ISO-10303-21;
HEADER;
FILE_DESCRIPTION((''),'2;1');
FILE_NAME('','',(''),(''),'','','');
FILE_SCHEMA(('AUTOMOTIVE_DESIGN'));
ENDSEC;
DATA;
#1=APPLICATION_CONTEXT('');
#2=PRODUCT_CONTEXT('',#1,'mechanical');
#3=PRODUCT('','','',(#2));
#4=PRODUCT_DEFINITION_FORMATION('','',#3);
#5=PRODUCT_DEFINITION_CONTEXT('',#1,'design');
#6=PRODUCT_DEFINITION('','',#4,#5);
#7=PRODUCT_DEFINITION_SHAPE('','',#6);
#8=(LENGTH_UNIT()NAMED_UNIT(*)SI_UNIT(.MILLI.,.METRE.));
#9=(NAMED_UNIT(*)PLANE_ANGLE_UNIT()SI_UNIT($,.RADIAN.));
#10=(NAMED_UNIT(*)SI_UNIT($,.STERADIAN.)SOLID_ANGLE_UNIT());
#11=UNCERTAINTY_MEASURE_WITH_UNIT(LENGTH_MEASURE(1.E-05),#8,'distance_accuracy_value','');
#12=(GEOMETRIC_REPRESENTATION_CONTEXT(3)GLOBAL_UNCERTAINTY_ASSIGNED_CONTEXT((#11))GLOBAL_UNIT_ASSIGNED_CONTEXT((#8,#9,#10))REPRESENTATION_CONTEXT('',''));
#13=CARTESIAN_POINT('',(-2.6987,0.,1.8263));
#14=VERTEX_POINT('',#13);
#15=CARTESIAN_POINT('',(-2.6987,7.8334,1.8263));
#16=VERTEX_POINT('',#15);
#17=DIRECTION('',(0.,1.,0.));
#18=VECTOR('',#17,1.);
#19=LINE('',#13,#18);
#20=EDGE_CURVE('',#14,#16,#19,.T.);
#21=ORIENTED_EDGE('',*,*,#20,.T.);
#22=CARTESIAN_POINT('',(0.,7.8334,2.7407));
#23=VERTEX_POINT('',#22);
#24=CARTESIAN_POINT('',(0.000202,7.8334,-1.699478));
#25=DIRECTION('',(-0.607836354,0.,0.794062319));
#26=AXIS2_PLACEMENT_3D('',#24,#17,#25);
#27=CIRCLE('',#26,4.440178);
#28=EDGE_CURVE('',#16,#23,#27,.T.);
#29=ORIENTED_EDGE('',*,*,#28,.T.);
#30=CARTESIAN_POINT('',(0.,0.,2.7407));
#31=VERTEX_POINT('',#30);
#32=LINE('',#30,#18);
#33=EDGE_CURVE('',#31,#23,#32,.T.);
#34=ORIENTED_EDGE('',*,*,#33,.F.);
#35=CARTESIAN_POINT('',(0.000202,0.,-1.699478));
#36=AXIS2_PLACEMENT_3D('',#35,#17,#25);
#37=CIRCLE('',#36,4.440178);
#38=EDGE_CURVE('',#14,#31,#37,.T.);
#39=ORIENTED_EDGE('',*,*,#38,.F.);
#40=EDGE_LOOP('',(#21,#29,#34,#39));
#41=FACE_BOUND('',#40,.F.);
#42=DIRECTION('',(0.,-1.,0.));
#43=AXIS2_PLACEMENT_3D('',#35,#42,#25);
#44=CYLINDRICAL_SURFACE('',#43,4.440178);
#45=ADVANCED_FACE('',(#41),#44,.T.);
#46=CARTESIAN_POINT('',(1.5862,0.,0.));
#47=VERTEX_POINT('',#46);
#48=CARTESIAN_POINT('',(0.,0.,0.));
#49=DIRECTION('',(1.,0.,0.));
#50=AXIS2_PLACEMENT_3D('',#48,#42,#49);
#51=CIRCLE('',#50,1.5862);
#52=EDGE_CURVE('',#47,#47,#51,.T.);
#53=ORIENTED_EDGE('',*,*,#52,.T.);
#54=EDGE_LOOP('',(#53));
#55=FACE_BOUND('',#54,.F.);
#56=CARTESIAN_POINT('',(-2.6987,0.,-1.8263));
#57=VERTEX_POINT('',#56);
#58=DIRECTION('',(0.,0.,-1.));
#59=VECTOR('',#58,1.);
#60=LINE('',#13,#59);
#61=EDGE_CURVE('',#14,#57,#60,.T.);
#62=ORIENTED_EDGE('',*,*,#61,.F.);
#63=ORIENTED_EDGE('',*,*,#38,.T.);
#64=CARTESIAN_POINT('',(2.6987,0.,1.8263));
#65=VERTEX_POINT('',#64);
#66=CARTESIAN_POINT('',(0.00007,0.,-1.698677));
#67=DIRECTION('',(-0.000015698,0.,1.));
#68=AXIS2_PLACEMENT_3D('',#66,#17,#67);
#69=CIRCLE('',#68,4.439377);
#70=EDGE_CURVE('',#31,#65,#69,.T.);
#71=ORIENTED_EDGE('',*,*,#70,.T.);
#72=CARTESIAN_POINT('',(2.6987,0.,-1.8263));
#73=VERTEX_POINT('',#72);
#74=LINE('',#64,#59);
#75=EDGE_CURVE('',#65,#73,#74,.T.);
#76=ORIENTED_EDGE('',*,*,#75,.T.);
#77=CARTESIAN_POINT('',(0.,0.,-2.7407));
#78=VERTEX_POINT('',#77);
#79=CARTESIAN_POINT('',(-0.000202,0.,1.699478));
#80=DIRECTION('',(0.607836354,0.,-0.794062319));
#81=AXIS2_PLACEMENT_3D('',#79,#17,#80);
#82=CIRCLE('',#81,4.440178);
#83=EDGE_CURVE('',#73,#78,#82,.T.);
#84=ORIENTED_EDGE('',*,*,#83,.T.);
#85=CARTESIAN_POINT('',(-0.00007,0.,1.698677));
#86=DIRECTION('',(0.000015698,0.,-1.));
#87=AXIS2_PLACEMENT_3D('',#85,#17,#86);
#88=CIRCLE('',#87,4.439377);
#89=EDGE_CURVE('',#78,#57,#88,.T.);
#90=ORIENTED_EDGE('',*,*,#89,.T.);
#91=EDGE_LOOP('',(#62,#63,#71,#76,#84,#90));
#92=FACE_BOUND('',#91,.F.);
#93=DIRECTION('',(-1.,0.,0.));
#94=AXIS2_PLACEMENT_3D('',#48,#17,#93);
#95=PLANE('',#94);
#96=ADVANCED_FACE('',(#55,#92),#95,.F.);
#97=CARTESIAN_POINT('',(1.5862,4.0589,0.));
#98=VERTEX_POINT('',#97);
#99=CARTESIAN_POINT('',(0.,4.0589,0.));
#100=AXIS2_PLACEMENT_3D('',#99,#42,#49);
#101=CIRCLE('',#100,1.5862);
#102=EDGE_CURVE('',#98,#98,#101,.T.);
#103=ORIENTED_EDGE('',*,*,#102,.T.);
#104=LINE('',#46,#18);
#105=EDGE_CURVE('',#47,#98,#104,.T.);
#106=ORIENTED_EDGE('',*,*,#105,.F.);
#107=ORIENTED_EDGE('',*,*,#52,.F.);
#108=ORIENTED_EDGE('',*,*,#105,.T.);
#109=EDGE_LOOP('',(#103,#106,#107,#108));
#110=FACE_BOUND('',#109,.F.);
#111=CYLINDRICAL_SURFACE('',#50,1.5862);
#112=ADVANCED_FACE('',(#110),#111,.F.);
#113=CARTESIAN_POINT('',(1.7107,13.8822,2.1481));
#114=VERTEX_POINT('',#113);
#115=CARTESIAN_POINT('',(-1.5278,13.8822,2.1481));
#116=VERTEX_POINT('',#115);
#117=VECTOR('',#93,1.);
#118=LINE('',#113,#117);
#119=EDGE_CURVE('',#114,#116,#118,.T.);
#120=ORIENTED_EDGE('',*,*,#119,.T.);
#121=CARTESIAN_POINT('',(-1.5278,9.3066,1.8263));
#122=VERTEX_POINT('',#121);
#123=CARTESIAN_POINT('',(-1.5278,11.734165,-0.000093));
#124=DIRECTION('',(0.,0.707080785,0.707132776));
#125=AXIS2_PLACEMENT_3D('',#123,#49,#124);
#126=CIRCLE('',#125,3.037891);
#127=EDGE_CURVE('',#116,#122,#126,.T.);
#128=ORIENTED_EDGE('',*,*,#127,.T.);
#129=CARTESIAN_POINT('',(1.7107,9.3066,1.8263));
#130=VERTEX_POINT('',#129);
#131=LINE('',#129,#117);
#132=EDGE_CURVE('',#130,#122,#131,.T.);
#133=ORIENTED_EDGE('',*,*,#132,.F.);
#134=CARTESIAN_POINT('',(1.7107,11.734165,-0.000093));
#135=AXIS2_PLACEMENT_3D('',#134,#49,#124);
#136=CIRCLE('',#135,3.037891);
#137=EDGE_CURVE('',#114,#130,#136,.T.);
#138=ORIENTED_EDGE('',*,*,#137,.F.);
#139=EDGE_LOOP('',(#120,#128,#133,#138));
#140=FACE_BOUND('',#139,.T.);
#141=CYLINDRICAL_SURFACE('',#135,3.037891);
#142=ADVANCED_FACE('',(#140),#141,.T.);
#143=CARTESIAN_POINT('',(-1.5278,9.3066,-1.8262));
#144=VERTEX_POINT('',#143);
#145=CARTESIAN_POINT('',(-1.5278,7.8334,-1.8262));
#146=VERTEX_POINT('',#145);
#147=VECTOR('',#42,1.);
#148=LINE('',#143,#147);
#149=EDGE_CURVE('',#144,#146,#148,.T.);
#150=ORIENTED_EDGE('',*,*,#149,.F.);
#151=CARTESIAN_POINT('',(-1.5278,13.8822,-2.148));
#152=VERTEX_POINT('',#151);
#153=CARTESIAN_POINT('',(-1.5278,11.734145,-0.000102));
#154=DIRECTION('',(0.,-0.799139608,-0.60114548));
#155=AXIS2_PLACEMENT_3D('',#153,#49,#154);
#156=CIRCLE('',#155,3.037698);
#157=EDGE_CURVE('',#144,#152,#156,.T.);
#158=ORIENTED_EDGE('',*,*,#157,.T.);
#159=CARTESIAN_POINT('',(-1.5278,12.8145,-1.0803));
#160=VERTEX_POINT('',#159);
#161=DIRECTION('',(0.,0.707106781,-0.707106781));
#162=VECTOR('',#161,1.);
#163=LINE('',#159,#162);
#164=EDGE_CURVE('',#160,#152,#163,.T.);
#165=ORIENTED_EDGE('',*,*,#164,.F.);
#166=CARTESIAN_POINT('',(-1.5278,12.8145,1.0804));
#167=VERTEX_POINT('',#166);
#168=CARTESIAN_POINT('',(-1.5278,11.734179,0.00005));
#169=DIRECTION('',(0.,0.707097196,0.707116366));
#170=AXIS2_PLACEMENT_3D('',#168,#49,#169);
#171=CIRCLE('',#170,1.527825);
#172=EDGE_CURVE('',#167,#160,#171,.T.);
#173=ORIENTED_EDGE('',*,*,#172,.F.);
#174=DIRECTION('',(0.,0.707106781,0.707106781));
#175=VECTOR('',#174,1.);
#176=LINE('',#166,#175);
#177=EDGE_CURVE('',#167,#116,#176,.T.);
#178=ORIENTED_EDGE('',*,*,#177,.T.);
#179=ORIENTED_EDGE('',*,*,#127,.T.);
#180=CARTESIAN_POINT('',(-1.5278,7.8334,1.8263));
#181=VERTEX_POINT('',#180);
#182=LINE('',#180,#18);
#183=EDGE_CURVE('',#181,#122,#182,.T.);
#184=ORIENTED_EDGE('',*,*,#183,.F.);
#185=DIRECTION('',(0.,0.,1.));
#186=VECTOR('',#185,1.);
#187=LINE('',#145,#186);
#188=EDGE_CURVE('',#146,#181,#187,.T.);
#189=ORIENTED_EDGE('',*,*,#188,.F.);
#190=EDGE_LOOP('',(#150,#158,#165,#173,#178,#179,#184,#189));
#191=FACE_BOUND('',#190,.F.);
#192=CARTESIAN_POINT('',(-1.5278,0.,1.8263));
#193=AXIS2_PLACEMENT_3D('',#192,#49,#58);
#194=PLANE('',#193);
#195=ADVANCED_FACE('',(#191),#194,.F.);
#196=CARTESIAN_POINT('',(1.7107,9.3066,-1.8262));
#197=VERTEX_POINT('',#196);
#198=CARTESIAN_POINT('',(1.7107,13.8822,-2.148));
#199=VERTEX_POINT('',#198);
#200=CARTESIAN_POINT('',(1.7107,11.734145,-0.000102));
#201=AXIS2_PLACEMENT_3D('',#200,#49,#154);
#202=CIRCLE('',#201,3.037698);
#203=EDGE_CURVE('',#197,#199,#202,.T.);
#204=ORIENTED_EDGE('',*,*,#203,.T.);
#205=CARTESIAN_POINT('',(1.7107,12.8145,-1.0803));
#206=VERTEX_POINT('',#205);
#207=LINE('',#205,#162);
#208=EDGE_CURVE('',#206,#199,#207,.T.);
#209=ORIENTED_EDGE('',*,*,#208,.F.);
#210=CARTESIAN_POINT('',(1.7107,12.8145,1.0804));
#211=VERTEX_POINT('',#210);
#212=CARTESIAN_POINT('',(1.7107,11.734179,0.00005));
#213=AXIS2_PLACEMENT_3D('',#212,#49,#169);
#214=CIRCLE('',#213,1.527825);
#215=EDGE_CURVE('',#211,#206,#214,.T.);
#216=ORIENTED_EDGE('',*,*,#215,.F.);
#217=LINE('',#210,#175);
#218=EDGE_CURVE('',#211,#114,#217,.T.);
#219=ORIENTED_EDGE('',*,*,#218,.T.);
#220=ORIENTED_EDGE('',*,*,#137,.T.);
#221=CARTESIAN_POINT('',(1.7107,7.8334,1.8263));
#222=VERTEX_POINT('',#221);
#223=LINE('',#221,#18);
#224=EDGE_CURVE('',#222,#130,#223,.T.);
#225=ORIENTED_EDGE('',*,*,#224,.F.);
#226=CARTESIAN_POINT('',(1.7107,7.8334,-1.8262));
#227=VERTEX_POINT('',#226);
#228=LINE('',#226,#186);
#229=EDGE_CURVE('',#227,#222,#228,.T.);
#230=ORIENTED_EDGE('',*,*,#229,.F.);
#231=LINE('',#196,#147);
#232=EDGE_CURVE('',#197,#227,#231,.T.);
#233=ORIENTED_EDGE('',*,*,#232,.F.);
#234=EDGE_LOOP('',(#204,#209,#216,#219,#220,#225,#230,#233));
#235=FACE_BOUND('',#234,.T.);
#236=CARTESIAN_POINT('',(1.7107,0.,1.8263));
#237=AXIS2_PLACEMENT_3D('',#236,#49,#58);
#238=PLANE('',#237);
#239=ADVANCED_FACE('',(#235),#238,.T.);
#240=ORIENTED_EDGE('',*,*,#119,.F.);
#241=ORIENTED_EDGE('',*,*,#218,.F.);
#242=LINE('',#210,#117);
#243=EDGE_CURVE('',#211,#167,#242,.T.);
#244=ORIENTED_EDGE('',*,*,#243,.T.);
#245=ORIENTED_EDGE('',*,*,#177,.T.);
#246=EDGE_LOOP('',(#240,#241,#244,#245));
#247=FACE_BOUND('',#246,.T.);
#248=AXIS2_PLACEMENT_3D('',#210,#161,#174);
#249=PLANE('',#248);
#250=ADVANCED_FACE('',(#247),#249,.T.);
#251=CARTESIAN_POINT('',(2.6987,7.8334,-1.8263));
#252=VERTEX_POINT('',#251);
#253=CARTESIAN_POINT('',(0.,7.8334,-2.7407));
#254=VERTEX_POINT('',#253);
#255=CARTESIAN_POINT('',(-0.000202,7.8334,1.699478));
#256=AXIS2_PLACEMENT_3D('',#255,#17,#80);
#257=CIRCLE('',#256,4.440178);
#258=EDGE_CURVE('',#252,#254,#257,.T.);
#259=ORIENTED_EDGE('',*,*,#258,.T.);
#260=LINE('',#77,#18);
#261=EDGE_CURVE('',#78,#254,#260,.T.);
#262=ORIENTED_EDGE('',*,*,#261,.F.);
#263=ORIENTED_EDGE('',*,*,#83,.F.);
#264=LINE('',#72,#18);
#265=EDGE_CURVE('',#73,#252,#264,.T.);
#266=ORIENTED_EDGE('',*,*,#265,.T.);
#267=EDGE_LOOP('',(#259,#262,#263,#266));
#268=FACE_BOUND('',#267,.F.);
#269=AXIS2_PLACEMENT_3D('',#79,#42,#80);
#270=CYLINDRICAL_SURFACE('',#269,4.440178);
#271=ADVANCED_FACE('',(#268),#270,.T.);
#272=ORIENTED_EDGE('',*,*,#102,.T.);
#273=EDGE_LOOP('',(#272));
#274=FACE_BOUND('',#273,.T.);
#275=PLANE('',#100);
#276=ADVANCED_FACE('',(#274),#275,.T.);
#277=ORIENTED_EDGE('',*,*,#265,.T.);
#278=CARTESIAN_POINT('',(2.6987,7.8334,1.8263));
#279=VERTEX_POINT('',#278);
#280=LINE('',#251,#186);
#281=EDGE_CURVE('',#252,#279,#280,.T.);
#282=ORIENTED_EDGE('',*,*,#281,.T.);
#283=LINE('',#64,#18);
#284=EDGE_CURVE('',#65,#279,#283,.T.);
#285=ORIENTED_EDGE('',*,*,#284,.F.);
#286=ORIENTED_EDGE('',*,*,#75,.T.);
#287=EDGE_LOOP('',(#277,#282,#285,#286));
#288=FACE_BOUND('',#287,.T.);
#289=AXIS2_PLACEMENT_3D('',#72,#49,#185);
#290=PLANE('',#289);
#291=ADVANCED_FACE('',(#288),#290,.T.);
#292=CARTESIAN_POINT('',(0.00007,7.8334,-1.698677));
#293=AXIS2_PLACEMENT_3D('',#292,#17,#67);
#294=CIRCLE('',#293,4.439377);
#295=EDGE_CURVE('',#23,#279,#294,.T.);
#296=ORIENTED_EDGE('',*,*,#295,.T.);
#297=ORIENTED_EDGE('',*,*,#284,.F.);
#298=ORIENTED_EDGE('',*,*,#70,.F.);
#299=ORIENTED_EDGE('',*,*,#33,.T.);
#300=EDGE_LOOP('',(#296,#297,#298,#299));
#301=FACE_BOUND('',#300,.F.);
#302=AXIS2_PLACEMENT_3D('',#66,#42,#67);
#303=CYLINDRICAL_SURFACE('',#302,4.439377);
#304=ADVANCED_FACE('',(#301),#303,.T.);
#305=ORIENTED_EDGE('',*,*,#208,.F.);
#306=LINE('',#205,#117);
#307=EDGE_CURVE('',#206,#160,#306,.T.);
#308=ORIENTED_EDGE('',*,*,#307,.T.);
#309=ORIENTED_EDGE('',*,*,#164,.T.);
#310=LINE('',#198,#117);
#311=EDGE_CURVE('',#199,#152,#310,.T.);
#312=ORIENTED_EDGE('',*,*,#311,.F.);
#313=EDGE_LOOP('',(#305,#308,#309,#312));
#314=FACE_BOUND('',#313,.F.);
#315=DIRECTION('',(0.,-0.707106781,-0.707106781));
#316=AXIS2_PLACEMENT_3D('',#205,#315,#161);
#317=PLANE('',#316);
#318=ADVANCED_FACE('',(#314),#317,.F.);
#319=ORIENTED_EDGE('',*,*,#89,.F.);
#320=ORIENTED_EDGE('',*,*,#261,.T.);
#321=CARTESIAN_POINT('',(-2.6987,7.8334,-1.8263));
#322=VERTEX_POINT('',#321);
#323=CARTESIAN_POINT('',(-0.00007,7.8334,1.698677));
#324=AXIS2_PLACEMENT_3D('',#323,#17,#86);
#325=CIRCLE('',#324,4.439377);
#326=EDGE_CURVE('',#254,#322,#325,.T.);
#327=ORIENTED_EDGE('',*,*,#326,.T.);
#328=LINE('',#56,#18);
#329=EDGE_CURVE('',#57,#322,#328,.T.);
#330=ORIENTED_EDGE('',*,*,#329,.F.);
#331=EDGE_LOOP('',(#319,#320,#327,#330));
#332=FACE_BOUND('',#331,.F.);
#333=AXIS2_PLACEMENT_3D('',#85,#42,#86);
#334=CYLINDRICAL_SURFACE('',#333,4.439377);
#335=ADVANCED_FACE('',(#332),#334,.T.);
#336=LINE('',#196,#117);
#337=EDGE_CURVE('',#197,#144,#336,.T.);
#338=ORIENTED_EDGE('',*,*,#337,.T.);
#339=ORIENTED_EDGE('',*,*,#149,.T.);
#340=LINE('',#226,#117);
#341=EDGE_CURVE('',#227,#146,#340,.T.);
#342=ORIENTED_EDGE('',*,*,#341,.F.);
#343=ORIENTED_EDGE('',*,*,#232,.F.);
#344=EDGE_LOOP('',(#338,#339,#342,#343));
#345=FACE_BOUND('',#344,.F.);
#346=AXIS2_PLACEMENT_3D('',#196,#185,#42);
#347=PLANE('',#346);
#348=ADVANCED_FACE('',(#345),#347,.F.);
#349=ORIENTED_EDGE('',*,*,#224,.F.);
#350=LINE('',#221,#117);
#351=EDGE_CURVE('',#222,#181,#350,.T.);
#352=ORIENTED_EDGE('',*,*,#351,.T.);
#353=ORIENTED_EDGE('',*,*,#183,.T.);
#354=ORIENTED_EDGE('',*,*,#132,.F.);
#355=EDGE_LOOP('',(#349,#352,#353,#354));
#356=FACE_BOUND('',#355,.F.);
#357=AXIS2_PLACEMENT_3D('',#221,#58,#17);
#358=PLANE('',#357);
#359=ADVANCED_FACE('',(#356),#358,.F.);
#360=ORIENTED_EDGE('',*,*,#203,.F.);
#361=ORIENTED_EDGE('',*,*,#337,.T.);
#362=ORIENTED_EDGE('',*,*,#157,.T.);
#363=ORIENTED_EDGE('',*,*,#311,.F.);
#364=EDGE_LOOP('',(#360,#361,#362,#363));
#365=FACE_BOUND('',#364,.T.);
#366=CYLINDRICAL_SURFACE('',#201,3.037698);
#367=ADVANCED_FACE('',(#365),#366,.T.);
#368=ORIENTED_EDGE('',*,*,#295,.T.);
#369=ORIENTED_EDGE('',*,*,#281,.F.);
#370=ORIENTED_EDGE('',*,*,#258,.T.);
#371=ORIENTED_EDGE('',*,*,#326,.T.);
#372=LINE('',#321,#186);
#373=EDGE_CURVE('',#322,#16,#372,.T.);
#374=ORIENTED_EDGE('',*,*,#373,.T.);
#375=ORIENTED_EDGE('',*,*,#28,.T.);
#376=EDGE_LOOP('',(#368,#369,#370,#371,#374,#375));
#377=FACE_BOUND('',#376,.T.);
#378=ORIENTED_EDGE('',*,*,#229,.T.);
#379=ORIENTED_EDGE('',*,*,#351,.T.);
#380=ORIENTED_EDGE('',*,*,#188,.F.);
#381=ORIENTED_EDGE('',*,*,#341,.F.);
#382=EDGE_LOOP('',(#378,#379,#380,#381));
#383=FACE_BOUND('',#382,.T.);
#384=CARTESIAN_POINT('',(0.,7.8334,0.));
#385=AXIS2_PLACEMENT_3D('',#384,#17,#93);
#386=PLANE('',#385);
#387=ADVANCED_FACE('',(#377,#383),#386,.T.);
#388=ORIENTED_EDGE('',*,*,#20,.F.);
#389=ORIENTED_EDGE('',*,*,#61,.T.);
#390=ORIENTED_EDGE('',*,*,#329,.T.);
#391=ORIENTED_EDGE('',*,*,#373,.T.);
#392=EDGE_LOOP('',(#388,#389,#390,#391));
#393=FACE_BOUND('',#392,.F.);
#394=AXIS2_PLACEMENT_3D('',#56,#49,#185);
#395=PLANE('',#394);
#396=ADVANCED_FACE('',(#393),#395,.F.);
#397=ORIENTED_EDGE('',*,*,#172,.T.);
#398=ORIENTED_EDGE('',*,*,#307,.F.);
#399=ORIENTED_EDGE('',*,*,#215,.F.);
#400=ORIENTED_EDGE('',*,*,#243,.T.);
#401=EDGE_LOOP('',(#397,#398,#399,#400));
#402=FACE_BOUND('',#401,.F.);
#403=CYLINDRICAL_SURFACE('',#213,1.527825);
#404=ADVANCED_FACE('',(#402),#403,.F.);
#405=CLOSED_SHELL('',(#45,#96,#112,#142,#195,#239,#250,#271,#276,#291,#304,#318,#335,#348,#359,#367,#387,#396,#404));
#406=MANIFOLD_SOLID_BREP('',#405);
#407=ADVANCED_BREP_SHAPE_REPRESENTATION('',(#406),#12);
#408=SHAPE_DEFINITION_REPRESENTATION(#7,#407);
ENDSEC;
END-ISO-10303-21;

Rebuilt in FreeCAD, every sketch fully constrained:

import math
import FreeCAD as App
import Part
import Sketcher

V = App.Vector
Q = App.Units.Quantity

doc = App.newDocument("Part")
body = doc.addObject("PartDesign::Body", "Body")

# Sketch on XZ plane
sketch1 = doc.addObject("Sketcher::SketchObject", "Sketch")
body.addObject(sketch1)
sketch1.AttachmentSupport = (doc.XZ_Plane, [""])
sketch1.MapMode = "FlatFace"
sketch1.addGeometry([
    Part.ArcOfCircle(Part.Circle(V(0, 1.7, 0), V(0, 0, 1), 4.4), math.radians(-90), math.radians(-53)),  # 0
    Part.ArcOfCircle(Part.Circle(V(0, 1.7, 0), V(0, 0, 1), 4.4), math.radians(-127), math.radians(-90)),  # 1
    Part.LineSegment(V(-2.7, -1.8, 0), V(-2.7, 1.8, 0)),  # 2
    Part.ArcOfCircle(Part.Circle(V(0, -1.7, 0), V(0, 0, 1), 4.4), math.radians(90), math.radians(127)),  # 3
    Part.ArcOfCircle(Part.Circle(V(0, -1.7, 0), V(0, 0, 1), 4.4), math.radians(53), math.radians(90)),  # 4
    Part.LineSegment(V(2.7, 1.8, 0), V(2.7, -1.8, 0)),  # 5
], False)
sketch1.addConstraint([
    Sketcher.Constraint("Tangent", 0, 1, 1, 2),
    Sketcher.Constraint("Coincident", 1, 1, 2, 1),
    Sketcher.Constraint("Coincident", 2, 2, 3, 2),
    Sketcher.Constraint("Tangent", 3, 1, 4, 2),
    Sketcher.Constraint("Coincident", 4, 1, 5, 1),
    Sketcher.Constraint("Coincident", 5, 2, 0, 2),
    Sketcher.Constraint("Vertical", 2),
    Sketcher.Constraint("Vertical", 5),
    Sketcher.Constraint("Equal", 0, 1),
    Sketcher.Constraint("Equal", 1, 3),
    Sketcher.Constraint("Equal", 3, 4),
    Sketcher.Constraint("Symmetric", 0, 3, 3, 3, -1, 1),
    Sketcher.Constraint("Symmetric", 2, 2, 4, 1, -2),
    Sketcher.Constraint("PointOnObject", 0, 1, -2),
    Sketcher.Constraint("PointOnObject", 3, 1, -2),
    Sketcher.Constraint("DistanceY", 0, 1, -1, 1, Q("0.1079 in")),
    Sketcher.Constraint("DistanceY", 1, 1, -1, 1, Q("0.0719 in")),
    Sketcher.Constraint("Radius", 0, Q("0.1748 in")),
])
pad1 = doc.addObject("PartDesign::Pad", "Pad")
body.addObject(pad1)
pad1.Profile = sketch1
pad1.Length = Q("0.3084016 in")
pad1.Reversed = True

# Sketch on XZ plane
sketch2 = doc.addObject("Sketcher::SketchObject", "Sketch001")
body.addObject(sketch2)
sketch2.AttachmentSupport = (doc.XZ_Plane, [""])
sketch2.MapMode = "FlatFace"
sketch2.addGeometry(Part.Circle(V(0, 0, 0), V(0, 0, 1), 1.6), False)
sketch2.addConstraint([
    Sketcher.Constraint("Coincident", 0, 3, -1, 1),
    Sketcher.Constraint("Diameter", 0, Q("0.1249 in")),
])
pocket1 = doc.addObject("PartDesign::Pocket", "Pocket")
body.addObject(pocket1)
pocket1.Profile = sketch2
pocket1.Length = Q("0.1597992 in")

# Sketch on YZ plane
sketch3 = doc.addObject("Sketcher::SketchObject", "Sketch002")
body.addObject(sketch3)
sketch3.AttachmentSupport = (doc.YZ_Plane, [""])
sketch3.MapMode = "FlatFace"
sketch3.AttachmentOffset = App.Placement(V(0, 0, 1.7107), App.Rotation())
sketch3.addGeometry([
    Part.LineSegment(V(7.8, 1.8, 0), V(7.8, -1.8, 0)),  # 0
    Part.LineSegment(V(7.8, -1.8, 0), V(9.3, -1.8, 0)),  # 1
    Part.ArcOfCircle(Part.Circle(V(11.7, 0, 0), V(0, 0, 1), 3), math.radians(-143), math.radians(-45)),  # 2
    Part.LineSegment(V(13.9, -2.1, 0), V(12.8, -1.1, 0)),  # 3
    Part.ArcOfCircle(Part.Circle(V(11.7, 0, 0), V(0, 0, 1), 1.5), math.radians(45), math.radians(315)),  # 4
    Part.LineSegment(V(12.8, 1.1, 0), V(13.9, 2.1, 0)),  # 5
    Part.ArcOfCircle(Part.Circle(V(11.7, 0, 0), V(0, 0, 1), 3), math.radians(45), math.radians(143)),  # 6
    Part.LineSegment(V(9.3, 1.8, 0), V(7.8, 1.8, 0)),  # 7
], False)
sketch3.addConstraint([
    Sketcher.Constraint("Coincident", 0, 2, 1, 1),
    Sketcher.Constraint("Coincident", 1, 2, 2, 1),
    Sketcher.Constraint("Coincident", 2, 2, 3, 1),
    Sketcher.Constraint("Coincident", 3, 2, 4, 2),
    Sketcher.Constraint("Coincident", 4, 1, 5, 1),
    Sketcher.Constraint("Coincident", 5, 2, 6, 1),
    Sketcher.Constraint("Coincident", 6, 2, 7, 1),
    Sketcher.Constraint("Coincident", 7, 2, 0, 1),
    Sketcher.Constraint("Vertical", 0),
    Sketcher.Constraint("Horizontal", 1),
    Sketcher.Constraint("Horizontal", 7),
    Sketcher.Constraint("Coincident", 4, 3, 2, 3),
    Sketcher.Constraint("Coincident", 6, 3, 2, 3),
    Sketcher.Constraint("Equal", 2, 6),
    Sketcher.Constraint("Symmetric", 3, 2, 4, 1, -1),
    Sketcher.Constraint("Perpendicular", 3, 5),
    Sketcher.Constraint("Vertical", 2, 2, 5, 2),
    Sketcher.Constraint("Vertical", 1, 2, 6, 2),
    Sketcher.Constraint("DistanceX", 1, 1, 1, 2, Q("0.058 in")),
    Sketcher.Constraint("Radius", 4, 1.5278),
    Sketcher.Constraint("Radius", 2, Q("0.1196 in")),
    Sketcher.Constraint("DistanceY", 0, 2, 0, 1, Q("0.1438 in")),
    Sketcher.Constraint("DistanceX", -1, 1, 0, 2, Q("0.3084 in")),
    Sketcher.Constraint("DistanceX", -1, 1, 3, 2, Q("0.5045 in")),
])
pad2 = doc.addObject("PartDesign::Pad", "Pad001")
body.addObject(pad2)
pad2.Profile = sketch3
pad2.Length = Q("0.1275 in")
pad2.Reversed = True

doc.recompute()
